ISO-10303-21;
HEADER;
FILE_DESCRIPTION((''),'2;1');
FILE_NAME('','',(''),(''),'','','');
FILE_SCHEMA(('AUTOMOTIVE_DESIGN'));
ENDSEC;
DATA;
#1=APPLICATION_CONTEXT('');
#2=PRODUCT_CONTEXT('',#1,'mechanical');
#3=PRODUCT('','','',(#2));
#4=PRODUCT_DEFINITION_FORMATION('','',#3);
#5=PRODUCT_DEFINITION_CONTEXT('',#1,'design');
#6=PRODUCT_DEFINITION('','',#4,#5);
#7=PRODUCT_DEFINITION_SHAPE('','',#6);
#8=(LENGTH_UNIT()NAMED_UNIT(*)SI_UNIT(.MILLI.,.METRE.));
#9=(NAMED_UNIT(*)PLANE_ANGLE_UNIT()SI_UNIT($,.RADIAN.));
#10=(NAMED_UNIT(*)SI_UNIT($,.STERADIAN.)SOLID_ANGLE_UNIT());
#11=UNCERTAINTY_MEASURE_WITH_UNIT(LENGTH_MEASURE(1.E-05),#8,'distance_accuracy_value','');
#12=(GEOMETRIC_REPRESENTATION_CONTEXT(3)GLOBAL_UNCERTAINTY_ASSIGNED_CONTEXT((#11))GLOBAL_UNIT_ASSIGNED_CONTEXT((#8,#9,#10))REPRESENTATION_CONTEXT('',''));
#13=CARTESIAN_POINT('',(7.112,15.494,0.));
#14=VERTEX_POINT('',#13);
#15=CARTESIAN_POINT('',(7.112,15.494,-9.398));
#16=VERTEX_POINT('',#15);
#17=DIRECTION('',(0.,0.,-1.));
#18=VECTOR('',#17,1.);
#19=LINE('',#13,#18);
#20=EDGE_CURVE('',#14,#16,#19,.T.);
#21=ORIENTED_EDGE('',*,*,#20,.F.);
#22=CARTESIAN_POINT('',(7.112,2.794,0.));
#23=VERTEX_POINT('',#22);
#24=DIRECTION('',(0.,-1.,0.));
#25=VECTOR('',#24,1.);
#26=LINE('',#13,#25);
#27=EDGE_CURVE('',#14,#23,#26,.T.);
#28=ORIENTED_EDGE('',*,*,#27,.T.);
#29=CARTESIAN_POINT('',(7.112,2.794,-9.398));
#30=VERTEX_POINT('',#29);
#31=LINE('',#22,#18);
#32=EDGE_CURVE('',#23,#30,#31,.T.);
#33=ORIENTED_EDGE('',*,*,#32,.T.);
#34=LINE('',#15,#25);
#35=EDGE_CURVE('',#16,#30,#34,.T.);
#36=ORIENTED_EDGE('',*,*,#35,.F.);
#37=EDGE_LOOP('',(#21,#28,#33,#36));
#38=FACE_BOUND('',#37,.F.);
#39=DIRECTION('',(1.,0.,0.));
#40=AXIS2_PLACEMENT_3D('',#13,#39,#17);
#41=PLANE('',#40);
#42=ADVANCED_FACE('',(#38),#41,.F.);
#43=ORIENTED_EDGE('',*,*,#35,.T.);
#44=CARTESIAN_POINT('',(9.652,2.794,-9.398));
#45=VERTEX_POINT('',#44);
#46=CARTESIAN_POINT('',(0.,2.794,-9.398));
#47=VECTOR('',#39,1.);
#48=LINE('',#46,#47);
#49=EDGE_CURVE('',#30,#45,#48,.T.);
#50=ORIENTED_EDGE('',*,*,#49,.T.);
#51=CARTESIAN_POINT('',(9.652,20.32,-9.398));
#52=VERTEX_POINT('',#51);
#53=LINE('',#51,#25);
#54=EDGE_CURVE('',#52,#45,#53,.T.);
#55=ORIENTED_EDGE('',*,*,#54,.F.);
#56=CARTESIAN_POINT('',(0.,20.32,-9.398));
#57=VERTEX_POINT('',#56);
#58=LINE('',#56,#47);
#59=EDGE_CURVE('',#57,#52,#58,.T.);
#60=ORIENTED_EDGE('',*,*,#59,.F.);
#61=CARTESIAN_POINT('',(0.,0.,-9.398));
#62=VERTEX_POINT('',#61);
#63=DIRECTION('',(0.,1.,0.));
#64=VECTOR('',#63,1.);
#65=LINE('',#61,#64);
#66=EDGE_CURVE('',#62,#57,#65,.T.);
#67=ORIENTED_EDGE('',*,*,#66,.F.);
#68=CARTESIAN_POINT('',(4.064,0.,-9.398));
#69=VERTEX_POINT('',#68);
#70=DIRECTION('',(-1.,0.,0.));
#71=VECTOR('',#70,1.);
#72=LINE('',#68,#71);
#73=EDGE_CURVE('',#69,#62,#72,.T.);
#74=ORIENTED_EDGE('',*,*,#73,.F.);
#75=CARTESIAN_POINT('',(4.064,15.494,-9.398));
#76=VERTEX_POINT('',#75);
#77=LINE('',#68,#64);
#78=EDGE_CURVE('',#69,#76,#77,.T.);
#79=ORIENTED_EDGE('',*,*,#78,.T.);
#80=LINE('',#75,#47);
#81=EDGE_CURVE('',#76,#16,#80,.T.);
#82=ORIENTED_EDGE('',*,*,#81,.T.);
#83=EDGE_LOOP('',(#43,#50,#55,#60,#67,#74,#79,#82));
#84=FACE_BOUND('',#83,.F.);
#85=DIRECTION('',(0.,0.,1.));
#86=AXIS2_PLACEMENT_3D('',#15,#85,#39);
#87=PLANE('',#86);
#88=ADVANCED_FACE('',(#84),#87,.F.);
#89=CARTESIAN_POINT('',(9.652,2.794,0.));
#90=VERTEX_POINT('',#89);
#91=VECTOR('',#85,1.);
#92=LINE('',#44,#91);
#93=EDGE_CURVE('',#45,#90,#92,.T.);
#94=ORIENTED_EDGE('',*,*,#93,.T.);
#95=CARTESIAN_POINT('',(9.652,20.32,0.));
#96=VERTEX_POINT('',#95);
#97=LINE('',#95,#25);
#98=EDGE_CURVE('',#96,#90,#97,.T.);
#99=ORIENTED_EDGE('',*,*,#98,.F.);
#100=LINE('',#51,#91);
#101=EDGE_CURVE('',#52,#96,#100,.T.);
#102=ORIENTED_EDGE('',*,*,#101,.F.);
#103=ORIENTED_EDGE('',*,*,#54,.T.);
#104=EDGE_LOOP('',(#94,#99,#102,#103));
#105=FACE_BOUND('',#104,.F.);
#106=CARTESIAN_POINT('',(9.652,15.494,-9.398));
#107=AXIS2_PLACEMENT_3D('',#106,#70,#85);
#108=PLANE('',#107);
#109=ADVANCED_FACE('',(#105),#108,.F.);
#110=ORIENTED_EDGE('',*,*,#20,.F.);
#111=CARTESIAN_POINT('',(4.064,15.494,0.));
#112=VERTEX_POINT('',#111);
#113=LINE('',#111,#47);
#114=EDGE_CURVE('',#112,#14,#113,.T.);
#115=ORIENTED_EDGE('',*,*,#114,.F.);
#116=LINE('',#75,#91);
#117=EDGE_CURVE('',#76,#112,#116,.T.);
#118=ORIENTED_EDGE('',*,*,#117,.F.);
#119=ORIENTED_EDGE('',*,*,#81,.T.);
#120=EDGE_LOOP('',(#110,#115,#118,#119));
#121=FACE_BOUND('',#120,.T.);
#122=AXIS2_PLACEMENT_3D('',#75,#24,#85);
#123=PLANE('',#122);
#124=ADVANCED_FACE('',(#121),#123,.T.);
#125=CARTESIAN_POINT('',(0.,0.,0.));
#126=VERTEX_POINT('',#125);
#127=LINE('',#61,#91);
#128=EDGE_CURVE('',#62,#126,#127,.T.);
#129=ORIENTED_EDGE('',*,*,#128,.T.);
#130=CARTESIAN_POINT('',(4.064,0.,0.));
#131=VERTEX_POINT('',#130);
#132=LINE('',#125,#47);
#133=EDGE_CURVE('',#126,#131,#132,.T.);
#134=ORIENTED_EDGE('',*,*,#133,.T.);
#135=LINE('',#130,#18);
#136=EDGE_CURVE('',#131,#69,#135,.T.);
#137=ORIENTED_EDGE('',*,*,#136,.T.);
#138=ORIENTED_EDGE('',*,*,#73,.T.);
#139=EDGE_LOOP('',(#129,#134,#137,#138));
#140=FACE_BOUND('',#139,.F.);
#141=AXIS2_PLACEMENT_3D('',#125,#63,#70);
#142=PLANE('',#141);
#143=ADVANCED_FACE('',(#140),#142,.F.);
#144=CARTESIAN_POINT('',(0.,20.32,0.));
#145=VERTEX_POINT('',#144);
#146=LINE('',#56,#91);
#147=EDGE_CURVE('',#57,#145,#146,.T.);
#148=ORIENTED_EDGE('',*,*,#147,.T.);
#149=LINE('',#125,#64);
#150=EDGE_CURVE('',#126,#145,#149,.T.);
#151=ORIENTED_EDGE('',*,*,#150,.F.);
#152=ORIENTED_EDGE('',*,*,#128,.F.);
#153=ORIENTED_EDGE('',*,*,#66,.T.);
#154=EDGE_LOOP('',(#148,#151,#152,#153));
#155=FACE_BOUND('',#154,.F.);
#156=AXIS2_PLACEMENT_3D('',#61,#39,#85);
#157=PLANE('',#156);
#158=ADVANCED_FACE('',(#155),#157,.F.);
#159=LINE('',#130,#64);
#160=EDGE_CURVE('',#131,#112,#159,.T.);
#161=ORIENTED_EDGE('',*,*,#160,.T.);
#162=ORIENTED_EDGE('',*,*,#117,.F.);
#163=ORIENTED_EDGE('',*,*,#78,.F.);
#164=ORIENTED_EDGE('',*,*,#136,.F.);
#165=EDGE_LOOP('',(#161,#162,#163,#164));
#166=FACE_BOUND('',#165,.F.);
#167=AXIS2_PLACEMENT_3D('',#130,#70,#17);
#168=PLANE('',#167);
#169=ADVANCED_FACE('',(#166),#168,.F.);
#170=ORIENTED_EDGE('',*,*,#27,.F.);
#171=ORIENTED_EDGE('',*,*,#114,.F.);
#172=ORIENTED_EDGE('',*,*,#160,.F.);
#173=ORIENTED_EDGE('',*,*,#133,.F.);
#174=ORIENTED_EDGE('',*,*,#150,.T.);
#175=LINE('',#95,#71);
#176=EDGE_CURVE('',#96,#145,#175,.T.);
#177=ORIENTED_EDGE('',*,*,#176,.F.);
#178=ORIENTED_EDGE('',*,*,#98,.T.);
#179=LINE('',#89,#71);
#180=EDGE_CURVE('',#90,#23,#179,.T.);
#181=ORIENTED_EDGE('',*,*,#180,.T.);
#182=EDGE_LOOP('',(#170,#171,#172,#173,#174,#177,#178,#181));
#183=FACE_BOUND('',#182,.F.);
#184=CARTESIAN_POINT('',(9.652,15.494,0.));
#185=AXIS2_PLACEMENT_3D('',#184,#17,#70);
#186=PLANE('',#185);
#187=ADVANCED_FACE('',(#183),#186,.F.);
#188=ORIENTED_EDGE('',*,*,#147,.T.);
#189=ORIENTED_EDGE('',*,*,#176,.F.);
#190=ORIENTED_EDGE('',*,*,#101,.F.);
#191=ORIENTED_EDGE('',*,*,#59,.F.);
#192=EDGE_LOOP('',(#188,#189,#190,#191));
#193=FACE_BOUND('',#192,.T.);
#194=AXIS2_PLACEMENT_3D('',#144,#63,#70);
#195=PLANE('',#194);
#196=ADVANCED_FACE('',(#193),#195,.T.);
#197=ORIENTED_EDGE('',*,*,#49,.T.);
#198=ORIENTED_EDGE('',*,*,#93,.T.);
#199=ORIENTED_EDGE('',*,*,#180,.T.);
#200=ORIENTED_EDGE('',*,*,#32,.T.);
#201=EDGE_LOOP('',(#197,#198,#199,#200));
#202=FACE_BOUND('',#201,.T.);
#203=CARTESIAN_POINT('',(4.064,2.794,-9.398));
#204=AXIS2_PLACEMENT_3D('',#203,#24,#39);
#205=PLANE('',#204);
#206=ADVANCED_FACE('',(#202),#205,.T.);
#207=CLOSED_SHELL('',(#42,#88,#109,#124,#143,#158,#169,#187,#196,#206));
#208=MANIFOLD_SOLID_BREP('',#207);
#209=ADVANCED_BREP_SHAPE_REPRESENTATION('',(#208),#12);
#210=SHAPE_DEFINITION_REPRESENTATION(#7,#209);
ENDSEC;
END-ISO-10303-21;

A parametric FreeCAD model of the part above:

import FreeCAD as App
import Part
import Sketcher
Q = App.Units.Quantity

doc = App.newDocument("Part")
params = doc.addObject("Spreadsheet::Sheet", "Params")
for row, (alias, value) in enumerate([
    ("sketch1_width", "0.16 in"),
    ("sketch1_height", "0.37 in"),
    ("pad1_length", "0.8 in"),
    ("sketch2_width", "0.19 in"),
    ("sketch2_height", "0.37 in"),
    ("pad2_length", "0.22 in"),
    ("sketch3_width", "0.1 in"),
    ("sketch3_height", "0.37 in"),
    ("pad3_length", "0.5 in"),
], start=1):
    params.set(f"A{row}", alias)
    params.set(f"B{row}", "=" + value)
    params.setAlias(f"B{row}", alias)

body = doc.addObject("PartDesign::Body", "Body")

sketch1 = body.newObject("Sketcher::SketchObject", "Sketch")
sketch1.AttachmentSupport = (doc.getObject("XZ_Plane"), [""])
sketch1.MapMode = "FlatFace"
sketch1.addGeometry(Part.LineSegment(App.Vector(0, -9.398, 0), App.Vector(0, 0, 0)), False)
sketch1.addGeometry(Part.LineSegment(App.Vector(0, 0, 0), App.Vector(4.064, 0, 0)), False)
sketch1.addGeometry(Part.LineSegment(App.Vector(4.064, 0, 0), App.Vector(4.064, -9.398, 0)), False)
sketch1.addGeometry(Part.LineSegment(App.Vector(4.064, -9.398, 0), App.Vector(0, -9.398, 0)), False)
sketch1.addConstraint(Sketcher.Constraint("Coincident", 0, 2, 1, 1))
sketch1.addConstraint(Sketcher.Constraint("Coincident", 1, 2, 2, 1))
sketch1.addConstraint(Sketcher.Constraint("Coincident", 2, 2, 3, 1))
sketch1.addConstraint(Sketcher.Constraint("Coincident", 3, 2, 0, 1))
sketch1.addConstraint(Sketcher.Constraint("Vertical", 0))
sketch1.addConstraint(Sketcher.Constraint("Horizontal", 1))
sketch1.addConstraint(Sketcher.Constraint("Vertical", 2))
sketch1.addConstraint(Sketcher.Constraint("Horizontal", 3))
sketch1.addConstraint(Sketcher.Constraint("Coincident", 0, 2, -1, 1))
sketch1.addConstraint(Sketcher.Constraint("DistanceX", 1, 1, 1, 2, Q("0.16 in")))
sketch1.addConstraint(Sketcher.Constraint("DistanceY", 0, 1, 0, 2, Q("0.37 in")))
sketch1.setExpression("Constraints[9]", "Params.sketch1_width")
sketch1.setExpression("Constraints[10]", "Params.sketch1_height")
pad1 = body.newObject("PartDesign::Pad", "Pad")
pad1.Profile = sketch1
pad1.setExpression("Length", "Params.pad1_length")
pad1.Reversed = True

sketch2 = body.newObject("Sketcher::SketchObject", "Sketch001")
sketch2.AttachmentSupport = (doc.getObject("YZ_Plane"), [""])
sketch2.MapMode = "FlatFace"
sketch2.AttachmentOffset = App.Placement(App.Vector(0, 0, 0.16 * 25.4), App.Rotation())
sketch2.addGeometry(Part.LineSegment(App.Vector(15.494, -9.398, 0), App.Vector(20.32, -9.398, 0)), False)
sketch2.addGeometry(Part.LineSegment(App.Vector(20.32, -9.398, 0), App.Vector(20.32, 0, 0)), False)
sketch2.addGeometry(Part.LineSegment(App.Vector(20.32, 0, 0), App.Vector(15.494, 0, 0)), False)
sketch2.addGeometry(Part.LineSegment(App.Vector(15.494, 0, 0), App.Vector(15.494, -9.398, 0)), False)
sketch2.addConstraint(Sketcher.Constraint("Coincident", 0, 2, 1, 1))
sketch2.addConstraint(Sketcher.Constraint("Coincident", 1, 2, 2, 1))
sketch2.addConstraint(Sketcher.Constraint("Coincident", 2, 2, 3, 1))
sketch2.addConstraint(Sketcher.Constraint("Coincident", 3, 2, 0, 1))
sketch2.addConstraint(Sketcher.Constraint("Horizontal", 0))
sketch2.addConstraint(Sketcher.Constraint("Vertical", 1))
sketch2.addConstraint(Sketcher.Constraint("Horizontal", 2))
sketch2.addConstraint(Sketcher.Constraint("Vertical", 3))
sketch2.addConstraint(Sketcher.Constraint("PointOnObject", 1, 2, -1))
sketch2.addConstraint(Sketcher.Constraint("DistanceX", 0, 1, 0, 2, Q("0.19 in")))
sketch2.addConstraint(Sketcher.Constraint("DistanceY", 1, 1, 1, 2, Q("0.37 in")))
sketch2.addConstraint(Sketcher.Constraint("DistanceX", -1, 1, 0, 2, Q("0.8 in")))
sketch2.setExpression("Constraints[9]", "Params.sketch2_width")
sketch2.setExpression("Constraints[10]", "Params.sketch2_height")
pad2 = body.newObject("PartDesign::Pad", "Pad001")
pad2.Profile = sketch2
pad2.setExpression("Length", "Params.pad2_length")

sketch3 = body.newObject("Sketcher::SketchObject", "Sketch002")
sketch3.AttachmentSupport = (doc.getObject("XZ_Plane"), [""])
sketch3.MapMode = "FlatFace"
sketch3.AttachmentOffset = App.Placement(App.Vector(0, 0, -0.61 * 25.4), App.Rotation())
sketch3.addGeometry(Part.LineSegment(App.Vector(7.112, -9.398, 0), App.Vector(9.652, -9.398, 0)), False)
sketch3.addGeometry(Part.LineSegment(App.Vector(9.652, -9.398, 0), App.Vector(9.652, 0, 0)), False)
sketch3.addGeometry(Part.LineSegment(App.Vector(9.652, 0, 0), App.Vector(7.112, 0, 0)), False)
sketch3.addGeometry(Part.LineSegment(App.Vector(7.112, 0, 0), App.Vector(7.112, -9.398, 0)), False)
sketch3.addConstraint(Sketcher.Constraint("Coincident", 0, 2, 1, 1))
sketch3.addConstraint(Sketcher.Constraint("Coincident", 1, 2, 2, 1))
sketch3.addConstraint(Sketcher.Constraint("Coincident", 2, 2, 3, 1))
sketch3.addConstraint(Sketcher.Constraint("Coincident", 3, 2, 0, 1))
sketch3.addConstraint(Sketcher.Constraint("Horizontal", 0))
sketch3.addConstraint(Sketcher.Constraint("Vertical", 1))
sketch3.addConstraint(Sketcher.Constraint("Horizontal", 2))
sketch3.addConstraint(Sketcher.Constraint("Vertical", 3))
sketch3.addConstraint(Sketcher.Constraint("PointOnObject", 1, 2, -1))
sketch3.addConstraint(Sketcher.Constraint("DistanceX", 0, 1, 0, 2, Q("0.1 in")))
sketch3.addConstraint(Sketcher.Constraint("DistanceY", 1, 1, 1, 2, Q("0.37 in")))
sketch3.addConstraint(Sketcher.Constraint("DistanceX", -1, 1, 0, 2, Q("0.38 in")))
sketch3.setExpression("Constraints[9]", "Params.sketch3_width")
sketch3.setExpression("Constraints[10]", "Params.sketch3_height")
pad3 = body.newObject("PartDesign::Pad", "Pad002")
pad3.Profile = sketch3
pad3.setExpression("Length", "Params.pad3_length")

doc.recompute()
